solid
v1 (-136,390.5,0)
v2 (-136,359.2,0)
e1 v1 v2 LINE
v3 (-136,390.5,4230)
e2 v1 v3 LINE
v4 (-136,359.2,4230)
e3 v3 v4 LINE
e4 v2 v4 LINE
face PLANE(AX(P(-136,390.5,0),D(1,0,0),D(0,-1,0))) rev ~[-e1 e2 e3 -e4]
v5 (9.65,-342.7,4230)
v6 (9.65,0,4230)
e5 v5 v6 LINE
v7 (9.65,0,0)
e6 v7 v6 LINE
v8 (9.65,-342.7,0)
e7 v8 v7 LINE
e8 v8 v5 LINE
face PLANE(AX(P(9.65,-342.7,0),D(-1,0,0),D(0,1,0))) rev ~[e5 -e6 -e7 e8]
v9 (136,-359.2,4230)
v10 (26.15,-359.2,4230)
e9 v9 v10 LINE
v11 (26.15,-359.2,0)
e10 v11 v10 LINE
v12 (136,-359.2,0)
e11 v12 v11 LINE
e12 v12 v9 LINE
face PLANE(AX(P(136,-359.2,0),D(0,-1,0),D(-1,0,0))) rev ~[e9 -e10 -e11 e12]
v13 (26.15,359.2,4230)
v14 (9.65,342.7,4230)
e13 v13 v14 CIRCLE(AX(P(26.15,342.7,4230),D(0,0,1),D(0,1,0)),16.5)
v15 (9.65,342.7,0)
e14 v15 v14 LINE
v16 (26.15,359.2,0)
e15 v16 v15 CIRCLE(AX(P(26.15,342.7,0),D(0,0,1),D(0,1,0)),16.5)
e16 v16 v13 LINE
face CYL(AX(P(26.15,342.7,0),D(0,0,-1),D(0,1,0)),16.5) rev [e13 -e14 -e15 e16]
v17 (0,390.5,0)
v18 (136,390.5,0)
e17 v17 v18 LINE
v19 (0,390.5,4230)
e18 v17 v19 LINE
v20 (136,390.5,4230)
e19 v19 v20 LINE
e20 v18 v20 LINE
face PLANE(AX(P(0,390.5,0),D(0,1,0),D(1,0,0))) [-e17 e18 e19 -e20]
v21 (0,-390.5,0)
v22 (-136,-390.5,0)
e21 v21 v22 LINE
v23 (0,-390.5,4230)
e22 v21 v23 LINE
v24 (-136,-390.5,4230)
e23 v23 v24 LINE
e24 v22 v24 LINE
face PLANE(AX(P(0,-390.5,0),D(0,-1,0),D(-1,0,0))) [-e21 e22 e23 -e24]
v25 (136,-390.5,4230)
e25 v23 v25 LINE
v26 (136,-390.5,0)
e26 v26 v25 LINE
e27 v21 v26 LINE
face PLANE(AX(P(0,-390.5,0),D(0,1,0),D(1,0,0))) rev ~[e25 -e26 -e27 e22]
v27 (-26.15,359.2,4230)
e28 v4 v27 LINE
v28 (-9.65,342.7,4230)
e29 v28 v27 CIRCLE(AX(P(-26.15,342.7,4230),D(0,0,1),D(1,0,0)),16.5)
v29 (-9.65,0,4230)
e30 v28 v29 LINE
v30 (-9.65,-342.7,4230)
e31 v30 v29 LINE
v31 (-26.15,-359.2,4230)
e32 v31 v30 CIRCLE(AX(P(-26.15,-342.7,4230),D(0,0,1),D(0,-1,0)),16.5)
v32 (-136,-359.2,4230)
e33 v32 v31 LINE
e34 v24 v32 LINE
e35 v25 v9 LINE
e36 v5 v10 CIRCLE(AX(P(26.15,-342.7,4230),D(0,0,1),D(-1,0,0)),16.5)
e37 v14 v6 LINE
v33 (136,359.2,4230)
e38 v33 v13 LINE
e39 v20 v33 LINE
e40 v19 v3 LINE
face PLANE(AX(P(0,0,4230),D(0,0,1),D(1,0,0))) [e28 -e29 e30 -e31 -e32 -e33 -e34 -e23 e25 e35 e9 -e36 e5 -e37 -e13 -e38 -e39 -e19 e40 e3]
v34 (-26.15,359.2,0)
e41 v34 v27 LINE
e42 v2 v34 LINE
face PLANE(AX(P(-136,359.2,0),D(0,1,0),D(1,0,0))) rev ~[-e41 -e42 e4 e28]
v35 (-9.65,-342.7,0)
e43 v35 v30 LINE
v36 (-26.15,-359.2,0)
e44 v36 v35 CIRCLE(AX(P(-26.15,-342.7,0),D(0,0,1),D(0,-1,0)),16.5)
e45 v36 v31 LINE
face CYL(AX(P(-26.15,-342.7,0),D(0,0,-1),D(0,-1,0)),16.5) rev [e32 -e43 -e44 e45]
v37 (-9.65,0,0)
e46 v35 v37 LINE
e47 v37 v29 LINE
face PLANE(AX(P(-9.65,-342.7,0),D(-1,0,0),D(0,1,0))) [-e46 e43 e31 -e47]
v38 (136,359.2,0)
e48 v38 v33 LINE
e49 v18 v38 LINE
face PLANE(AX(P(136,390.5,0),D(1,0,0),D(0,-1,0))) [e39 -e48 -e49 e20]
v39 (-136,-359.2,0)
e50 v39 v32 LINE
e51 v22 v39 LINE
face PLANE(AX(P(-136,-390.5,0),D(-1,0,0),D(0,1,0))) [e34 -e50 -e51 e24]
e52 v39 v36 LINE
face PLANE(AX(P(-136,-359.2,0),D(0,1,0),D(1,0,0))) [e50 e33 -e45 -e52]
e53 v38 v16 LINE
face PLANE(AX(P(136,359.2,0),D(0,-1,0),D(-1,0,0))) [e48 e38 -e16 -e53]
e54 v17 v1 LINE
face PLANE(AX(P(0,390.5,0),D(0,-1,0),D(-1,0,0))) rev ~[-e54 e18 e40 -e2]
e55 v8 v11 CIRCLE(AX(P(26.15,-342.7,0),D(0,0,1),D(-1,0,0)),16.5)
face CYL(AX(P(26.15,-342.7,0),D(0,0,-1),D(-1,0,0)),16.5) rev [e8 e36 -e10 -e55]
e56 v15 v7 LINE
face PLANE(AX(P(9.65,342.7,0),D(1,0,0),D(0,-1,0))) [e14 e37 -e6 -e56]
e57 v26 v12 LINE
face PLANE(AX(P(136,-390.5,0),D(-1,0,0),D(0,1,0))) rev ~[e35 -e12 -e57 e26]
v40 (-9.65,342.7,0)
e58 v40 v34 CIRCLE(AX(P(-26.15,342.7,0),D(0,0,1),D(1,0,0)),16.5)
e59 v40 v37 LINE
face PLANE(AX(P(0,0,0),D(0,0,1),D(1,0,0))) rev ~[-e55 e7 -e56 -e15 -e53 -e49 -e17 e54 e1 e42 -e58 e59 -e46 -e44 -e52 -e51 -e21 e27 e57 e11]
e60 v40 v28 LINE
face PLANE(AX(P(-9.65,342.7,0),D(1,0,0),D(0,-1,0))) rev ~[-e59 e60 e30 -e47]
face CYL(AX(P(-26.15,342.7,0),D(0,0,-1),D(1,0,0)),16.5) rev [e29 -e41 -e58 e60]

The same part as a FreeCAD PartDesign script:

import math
import FreeCAD as App
import Part
import Sketcher

V = App.Vector
Q = App.Units.Quantity

doc = App.newDocument("Part")
body = doc.addObject("PartDesign::Body", "Body")

# Sketch on XY plane
sketch1 = doc.addObject("Sketcher::SketchObject", "Sketch")
body.addObject(sketch1)
sketch1.AttachmentSupport = (doc.XY_Plane, [""])
sketch1.MapMode = "FlatFace"
sketch1.addGeometry(Part.LineSegment(V(-136, -359.2, 0), V(-136, -390.5, 0)), False)
sketch1.addGeometry(Part.LineSegment(V(-136, -390.5, 0), V(136, -390.5, 0)), False)
sketch1.addGeometry(Part.LineSegment(V(136, -390.5, 0), V(136, -359.2, 0)), False)
sketch1.addGeometry(Part.LineSegment(V(136, -359.2, 0), V(26.15, -359.2, 0)), False)
sketch1.addGeometry(Part.ArcOfCircle(Part.Circle(V(26.15, -342.7, 0), V(0, 0, 1), 16.5), math.radians(180), math.radians(270)), False)
sketch1.addGeometry(Part.LineSegment(V(9.65, -342.7, 0), V(9.65, 342.7, 0)), False)
sketch1.addGeometry(Part.ArcOfCircle(Part.Circle(V(26.15, 342.7, 0), V(0, 0, 1), 16.5), math.radians(90), math.radians(180)), False)
sketch1.addGeometry(Part.LineSegment(V(26.15, 359.2, 0), V(136, 359.2, 0)), False)
sketch1.addGeometry(Part.LineSegment(V(136, 359.2, 0), V(136, 390.5, 0)), False)
sketch1.addGeometry(Part.LineSegment(V(136, 390.5, 0), V(-136, 390.5, 0)), False)
sketch1.addGeometry(Part.LineSegment(V(-136, 390.5, 0), V(-136, 359.2, 0)), False)
sketch1.addGeometry(Part.LineSegment(V(-136, 359.2, 0), V(-26.15, 359.2, 0)), False)
sketch1.addGeometry(Part.ArcOfCircle(Part.Circle(V(-26.15, 342.7, 0), V(0, 0, 1), 16.5), math.radians(0), math.radians(90)), False)
sketch1.addGeometry(Part.LineSegment(V(-9.65, 342.7, 0), V(-9.65, -342.7, 0)), False)
sketch1.addGeometry(Part.ArcOfCircle(Part.Circle(V(-26.15, -342.7, 0), V(0, 0, 1), 16.5), math.radians(-90), math.radians(0)), False)
sketch1.addGeometry(Part.LineSegment(V(-26.15, -359.2, 0), V(-136, -359.2, 0)), False)
sketch1.addConstraint(Sketcher.Constraint("Coincident", 0, 2, 1, 1))
sketch1.addConstraint(Sketcher.Constraint("Coincident", 1, 2, 2, 1))
sketch1.addConstraint(Sketcher.Constraint("Coincident", 2, 2, 3, 1))
sketch1.addConstraint(Sketcher.Constraint("Tangent", 3, 2, 4, 2))
sketch1.addConstraint(Sketcher.Constraint("Tangent", 4, 1, 5, 1))
sketch1.addConstraint(Sketcher.Constraint("Tangent", 5, 2, 6, 2))
sketch1.addConstraint(Sketcher.Constraint("Tangent", 6, 1, 7, 1))
sketch1.addConstraint(Sketcher.Constraint("Coincident", 7, 2, 8, 1))
sketch1.addConstraint(Sketcher.Constraint("Coincident", 8, 2, 9, 1))
sketch1.addConstraint(Sketcher.Constraint("Coincident", 9, 2, 10, 1))
sketch1.addConstraint(Sketcher.Constraint("Coincident", 10, 2, 11, 1))
sketch1.addConstraint(Sketcher.Constraint("Tangent", 11, 2, 12, 2))
sketch1.addConstraint(Sketcher.Constraint("Tangent", 12, 1, 13, 1))
sketch1.addConstraint(Sketcher.Constraint("Tangent", 13, 2, 14, 2))
sketch1.addConstraint(Sketcher.Constraint("Tangent", 14, 1, 15, 1))
sketch1.addConstraint(Sketcher.Constraint("Coincident", 15, 2, 0, 1))
sketch1.addConstraint(Sketcher.Constraint("Vertical", 0))
sketch1.addConstraint(Sketcher.Constraint("Horizontal", 1))
sketch1.addConstraint(Sketcher.Constraint("Vertical", 2))
sketch1.addConstraint(Sketcher.Constraint("Horizontal", 3))
sketch1.addConstraint(Sketcher.Constraint("Vertical", 5))
sketch1.addConstraint(Sketcher.Constraint("Horizontal", 7))
sketch1.addConstraint(Sketcher.Constraint("Vertical", 8))
sketch1.addConstraint(Sketcher.Constraint("Horizontal", 9))
sketch1.addConstraint(Sketcher.Constraint("Vertical", 10))
sketch1.addConstraint(Sketcher.Constraint("Horizontal", 11))
sketch1.addConstraint(Sketcher.Constraint("Vertical", 13))
sketch1.addConstraint(Sketcher.Constraint("Horizontal", 15))
sketch1.addConstraint(Sketcher.Constraint("Equal", 4, 6))
sketch1.addConstraint(Sketcher.Constraint("Equal", 6, 12))
sketch1.addConstraint(Sketcher.Constraint("Equal", 12, 14))
sketch1.addConstraint(Sketcher.Constraint("Symmetric", 4, 3, 12, 3, -1, 1))
sketch1.addConstraint(Sketcher.Constraint("Symmetric", 0, 2, 8, 2, -1, 1))
sketch1.addConstraint(Sketcher.Constraint("Symmetric", 7, 2, 10, 2, -2))
sketch1.addConstraint(Sketcher.Constraint("Symmetric", 2, 2, 15, 2, -2))
sketch1.addConstraint(Sketcher.Constraint("Radius", 4, Q("16.5 mm")))
sketch1.addConstraint(Sketcher.Constraint("DistanceY", 0, 2, 0, 1, Q("31.3 mm")))
sketch1.addConstraint(Sketcher.Constraint("DistanceX", 0, 2, -1, 1, Q("136 mm")))
sketch1.addConstraint(Sketcher.Constraint("DistanceY", 0, 2, -1, 1, Q("390.5 mm")))
sketch1.addConstraint(Sketcher.Constraint("DistanceX", -1, 1, 4, 1, Q("9.65 mm")))
pad1 = doc.addObject("PartDesign::Pad", "Pad")
body.addObject(pad1)
pad1.Profile = sketch1
pad1.Length = 4230

doc.recompute()
